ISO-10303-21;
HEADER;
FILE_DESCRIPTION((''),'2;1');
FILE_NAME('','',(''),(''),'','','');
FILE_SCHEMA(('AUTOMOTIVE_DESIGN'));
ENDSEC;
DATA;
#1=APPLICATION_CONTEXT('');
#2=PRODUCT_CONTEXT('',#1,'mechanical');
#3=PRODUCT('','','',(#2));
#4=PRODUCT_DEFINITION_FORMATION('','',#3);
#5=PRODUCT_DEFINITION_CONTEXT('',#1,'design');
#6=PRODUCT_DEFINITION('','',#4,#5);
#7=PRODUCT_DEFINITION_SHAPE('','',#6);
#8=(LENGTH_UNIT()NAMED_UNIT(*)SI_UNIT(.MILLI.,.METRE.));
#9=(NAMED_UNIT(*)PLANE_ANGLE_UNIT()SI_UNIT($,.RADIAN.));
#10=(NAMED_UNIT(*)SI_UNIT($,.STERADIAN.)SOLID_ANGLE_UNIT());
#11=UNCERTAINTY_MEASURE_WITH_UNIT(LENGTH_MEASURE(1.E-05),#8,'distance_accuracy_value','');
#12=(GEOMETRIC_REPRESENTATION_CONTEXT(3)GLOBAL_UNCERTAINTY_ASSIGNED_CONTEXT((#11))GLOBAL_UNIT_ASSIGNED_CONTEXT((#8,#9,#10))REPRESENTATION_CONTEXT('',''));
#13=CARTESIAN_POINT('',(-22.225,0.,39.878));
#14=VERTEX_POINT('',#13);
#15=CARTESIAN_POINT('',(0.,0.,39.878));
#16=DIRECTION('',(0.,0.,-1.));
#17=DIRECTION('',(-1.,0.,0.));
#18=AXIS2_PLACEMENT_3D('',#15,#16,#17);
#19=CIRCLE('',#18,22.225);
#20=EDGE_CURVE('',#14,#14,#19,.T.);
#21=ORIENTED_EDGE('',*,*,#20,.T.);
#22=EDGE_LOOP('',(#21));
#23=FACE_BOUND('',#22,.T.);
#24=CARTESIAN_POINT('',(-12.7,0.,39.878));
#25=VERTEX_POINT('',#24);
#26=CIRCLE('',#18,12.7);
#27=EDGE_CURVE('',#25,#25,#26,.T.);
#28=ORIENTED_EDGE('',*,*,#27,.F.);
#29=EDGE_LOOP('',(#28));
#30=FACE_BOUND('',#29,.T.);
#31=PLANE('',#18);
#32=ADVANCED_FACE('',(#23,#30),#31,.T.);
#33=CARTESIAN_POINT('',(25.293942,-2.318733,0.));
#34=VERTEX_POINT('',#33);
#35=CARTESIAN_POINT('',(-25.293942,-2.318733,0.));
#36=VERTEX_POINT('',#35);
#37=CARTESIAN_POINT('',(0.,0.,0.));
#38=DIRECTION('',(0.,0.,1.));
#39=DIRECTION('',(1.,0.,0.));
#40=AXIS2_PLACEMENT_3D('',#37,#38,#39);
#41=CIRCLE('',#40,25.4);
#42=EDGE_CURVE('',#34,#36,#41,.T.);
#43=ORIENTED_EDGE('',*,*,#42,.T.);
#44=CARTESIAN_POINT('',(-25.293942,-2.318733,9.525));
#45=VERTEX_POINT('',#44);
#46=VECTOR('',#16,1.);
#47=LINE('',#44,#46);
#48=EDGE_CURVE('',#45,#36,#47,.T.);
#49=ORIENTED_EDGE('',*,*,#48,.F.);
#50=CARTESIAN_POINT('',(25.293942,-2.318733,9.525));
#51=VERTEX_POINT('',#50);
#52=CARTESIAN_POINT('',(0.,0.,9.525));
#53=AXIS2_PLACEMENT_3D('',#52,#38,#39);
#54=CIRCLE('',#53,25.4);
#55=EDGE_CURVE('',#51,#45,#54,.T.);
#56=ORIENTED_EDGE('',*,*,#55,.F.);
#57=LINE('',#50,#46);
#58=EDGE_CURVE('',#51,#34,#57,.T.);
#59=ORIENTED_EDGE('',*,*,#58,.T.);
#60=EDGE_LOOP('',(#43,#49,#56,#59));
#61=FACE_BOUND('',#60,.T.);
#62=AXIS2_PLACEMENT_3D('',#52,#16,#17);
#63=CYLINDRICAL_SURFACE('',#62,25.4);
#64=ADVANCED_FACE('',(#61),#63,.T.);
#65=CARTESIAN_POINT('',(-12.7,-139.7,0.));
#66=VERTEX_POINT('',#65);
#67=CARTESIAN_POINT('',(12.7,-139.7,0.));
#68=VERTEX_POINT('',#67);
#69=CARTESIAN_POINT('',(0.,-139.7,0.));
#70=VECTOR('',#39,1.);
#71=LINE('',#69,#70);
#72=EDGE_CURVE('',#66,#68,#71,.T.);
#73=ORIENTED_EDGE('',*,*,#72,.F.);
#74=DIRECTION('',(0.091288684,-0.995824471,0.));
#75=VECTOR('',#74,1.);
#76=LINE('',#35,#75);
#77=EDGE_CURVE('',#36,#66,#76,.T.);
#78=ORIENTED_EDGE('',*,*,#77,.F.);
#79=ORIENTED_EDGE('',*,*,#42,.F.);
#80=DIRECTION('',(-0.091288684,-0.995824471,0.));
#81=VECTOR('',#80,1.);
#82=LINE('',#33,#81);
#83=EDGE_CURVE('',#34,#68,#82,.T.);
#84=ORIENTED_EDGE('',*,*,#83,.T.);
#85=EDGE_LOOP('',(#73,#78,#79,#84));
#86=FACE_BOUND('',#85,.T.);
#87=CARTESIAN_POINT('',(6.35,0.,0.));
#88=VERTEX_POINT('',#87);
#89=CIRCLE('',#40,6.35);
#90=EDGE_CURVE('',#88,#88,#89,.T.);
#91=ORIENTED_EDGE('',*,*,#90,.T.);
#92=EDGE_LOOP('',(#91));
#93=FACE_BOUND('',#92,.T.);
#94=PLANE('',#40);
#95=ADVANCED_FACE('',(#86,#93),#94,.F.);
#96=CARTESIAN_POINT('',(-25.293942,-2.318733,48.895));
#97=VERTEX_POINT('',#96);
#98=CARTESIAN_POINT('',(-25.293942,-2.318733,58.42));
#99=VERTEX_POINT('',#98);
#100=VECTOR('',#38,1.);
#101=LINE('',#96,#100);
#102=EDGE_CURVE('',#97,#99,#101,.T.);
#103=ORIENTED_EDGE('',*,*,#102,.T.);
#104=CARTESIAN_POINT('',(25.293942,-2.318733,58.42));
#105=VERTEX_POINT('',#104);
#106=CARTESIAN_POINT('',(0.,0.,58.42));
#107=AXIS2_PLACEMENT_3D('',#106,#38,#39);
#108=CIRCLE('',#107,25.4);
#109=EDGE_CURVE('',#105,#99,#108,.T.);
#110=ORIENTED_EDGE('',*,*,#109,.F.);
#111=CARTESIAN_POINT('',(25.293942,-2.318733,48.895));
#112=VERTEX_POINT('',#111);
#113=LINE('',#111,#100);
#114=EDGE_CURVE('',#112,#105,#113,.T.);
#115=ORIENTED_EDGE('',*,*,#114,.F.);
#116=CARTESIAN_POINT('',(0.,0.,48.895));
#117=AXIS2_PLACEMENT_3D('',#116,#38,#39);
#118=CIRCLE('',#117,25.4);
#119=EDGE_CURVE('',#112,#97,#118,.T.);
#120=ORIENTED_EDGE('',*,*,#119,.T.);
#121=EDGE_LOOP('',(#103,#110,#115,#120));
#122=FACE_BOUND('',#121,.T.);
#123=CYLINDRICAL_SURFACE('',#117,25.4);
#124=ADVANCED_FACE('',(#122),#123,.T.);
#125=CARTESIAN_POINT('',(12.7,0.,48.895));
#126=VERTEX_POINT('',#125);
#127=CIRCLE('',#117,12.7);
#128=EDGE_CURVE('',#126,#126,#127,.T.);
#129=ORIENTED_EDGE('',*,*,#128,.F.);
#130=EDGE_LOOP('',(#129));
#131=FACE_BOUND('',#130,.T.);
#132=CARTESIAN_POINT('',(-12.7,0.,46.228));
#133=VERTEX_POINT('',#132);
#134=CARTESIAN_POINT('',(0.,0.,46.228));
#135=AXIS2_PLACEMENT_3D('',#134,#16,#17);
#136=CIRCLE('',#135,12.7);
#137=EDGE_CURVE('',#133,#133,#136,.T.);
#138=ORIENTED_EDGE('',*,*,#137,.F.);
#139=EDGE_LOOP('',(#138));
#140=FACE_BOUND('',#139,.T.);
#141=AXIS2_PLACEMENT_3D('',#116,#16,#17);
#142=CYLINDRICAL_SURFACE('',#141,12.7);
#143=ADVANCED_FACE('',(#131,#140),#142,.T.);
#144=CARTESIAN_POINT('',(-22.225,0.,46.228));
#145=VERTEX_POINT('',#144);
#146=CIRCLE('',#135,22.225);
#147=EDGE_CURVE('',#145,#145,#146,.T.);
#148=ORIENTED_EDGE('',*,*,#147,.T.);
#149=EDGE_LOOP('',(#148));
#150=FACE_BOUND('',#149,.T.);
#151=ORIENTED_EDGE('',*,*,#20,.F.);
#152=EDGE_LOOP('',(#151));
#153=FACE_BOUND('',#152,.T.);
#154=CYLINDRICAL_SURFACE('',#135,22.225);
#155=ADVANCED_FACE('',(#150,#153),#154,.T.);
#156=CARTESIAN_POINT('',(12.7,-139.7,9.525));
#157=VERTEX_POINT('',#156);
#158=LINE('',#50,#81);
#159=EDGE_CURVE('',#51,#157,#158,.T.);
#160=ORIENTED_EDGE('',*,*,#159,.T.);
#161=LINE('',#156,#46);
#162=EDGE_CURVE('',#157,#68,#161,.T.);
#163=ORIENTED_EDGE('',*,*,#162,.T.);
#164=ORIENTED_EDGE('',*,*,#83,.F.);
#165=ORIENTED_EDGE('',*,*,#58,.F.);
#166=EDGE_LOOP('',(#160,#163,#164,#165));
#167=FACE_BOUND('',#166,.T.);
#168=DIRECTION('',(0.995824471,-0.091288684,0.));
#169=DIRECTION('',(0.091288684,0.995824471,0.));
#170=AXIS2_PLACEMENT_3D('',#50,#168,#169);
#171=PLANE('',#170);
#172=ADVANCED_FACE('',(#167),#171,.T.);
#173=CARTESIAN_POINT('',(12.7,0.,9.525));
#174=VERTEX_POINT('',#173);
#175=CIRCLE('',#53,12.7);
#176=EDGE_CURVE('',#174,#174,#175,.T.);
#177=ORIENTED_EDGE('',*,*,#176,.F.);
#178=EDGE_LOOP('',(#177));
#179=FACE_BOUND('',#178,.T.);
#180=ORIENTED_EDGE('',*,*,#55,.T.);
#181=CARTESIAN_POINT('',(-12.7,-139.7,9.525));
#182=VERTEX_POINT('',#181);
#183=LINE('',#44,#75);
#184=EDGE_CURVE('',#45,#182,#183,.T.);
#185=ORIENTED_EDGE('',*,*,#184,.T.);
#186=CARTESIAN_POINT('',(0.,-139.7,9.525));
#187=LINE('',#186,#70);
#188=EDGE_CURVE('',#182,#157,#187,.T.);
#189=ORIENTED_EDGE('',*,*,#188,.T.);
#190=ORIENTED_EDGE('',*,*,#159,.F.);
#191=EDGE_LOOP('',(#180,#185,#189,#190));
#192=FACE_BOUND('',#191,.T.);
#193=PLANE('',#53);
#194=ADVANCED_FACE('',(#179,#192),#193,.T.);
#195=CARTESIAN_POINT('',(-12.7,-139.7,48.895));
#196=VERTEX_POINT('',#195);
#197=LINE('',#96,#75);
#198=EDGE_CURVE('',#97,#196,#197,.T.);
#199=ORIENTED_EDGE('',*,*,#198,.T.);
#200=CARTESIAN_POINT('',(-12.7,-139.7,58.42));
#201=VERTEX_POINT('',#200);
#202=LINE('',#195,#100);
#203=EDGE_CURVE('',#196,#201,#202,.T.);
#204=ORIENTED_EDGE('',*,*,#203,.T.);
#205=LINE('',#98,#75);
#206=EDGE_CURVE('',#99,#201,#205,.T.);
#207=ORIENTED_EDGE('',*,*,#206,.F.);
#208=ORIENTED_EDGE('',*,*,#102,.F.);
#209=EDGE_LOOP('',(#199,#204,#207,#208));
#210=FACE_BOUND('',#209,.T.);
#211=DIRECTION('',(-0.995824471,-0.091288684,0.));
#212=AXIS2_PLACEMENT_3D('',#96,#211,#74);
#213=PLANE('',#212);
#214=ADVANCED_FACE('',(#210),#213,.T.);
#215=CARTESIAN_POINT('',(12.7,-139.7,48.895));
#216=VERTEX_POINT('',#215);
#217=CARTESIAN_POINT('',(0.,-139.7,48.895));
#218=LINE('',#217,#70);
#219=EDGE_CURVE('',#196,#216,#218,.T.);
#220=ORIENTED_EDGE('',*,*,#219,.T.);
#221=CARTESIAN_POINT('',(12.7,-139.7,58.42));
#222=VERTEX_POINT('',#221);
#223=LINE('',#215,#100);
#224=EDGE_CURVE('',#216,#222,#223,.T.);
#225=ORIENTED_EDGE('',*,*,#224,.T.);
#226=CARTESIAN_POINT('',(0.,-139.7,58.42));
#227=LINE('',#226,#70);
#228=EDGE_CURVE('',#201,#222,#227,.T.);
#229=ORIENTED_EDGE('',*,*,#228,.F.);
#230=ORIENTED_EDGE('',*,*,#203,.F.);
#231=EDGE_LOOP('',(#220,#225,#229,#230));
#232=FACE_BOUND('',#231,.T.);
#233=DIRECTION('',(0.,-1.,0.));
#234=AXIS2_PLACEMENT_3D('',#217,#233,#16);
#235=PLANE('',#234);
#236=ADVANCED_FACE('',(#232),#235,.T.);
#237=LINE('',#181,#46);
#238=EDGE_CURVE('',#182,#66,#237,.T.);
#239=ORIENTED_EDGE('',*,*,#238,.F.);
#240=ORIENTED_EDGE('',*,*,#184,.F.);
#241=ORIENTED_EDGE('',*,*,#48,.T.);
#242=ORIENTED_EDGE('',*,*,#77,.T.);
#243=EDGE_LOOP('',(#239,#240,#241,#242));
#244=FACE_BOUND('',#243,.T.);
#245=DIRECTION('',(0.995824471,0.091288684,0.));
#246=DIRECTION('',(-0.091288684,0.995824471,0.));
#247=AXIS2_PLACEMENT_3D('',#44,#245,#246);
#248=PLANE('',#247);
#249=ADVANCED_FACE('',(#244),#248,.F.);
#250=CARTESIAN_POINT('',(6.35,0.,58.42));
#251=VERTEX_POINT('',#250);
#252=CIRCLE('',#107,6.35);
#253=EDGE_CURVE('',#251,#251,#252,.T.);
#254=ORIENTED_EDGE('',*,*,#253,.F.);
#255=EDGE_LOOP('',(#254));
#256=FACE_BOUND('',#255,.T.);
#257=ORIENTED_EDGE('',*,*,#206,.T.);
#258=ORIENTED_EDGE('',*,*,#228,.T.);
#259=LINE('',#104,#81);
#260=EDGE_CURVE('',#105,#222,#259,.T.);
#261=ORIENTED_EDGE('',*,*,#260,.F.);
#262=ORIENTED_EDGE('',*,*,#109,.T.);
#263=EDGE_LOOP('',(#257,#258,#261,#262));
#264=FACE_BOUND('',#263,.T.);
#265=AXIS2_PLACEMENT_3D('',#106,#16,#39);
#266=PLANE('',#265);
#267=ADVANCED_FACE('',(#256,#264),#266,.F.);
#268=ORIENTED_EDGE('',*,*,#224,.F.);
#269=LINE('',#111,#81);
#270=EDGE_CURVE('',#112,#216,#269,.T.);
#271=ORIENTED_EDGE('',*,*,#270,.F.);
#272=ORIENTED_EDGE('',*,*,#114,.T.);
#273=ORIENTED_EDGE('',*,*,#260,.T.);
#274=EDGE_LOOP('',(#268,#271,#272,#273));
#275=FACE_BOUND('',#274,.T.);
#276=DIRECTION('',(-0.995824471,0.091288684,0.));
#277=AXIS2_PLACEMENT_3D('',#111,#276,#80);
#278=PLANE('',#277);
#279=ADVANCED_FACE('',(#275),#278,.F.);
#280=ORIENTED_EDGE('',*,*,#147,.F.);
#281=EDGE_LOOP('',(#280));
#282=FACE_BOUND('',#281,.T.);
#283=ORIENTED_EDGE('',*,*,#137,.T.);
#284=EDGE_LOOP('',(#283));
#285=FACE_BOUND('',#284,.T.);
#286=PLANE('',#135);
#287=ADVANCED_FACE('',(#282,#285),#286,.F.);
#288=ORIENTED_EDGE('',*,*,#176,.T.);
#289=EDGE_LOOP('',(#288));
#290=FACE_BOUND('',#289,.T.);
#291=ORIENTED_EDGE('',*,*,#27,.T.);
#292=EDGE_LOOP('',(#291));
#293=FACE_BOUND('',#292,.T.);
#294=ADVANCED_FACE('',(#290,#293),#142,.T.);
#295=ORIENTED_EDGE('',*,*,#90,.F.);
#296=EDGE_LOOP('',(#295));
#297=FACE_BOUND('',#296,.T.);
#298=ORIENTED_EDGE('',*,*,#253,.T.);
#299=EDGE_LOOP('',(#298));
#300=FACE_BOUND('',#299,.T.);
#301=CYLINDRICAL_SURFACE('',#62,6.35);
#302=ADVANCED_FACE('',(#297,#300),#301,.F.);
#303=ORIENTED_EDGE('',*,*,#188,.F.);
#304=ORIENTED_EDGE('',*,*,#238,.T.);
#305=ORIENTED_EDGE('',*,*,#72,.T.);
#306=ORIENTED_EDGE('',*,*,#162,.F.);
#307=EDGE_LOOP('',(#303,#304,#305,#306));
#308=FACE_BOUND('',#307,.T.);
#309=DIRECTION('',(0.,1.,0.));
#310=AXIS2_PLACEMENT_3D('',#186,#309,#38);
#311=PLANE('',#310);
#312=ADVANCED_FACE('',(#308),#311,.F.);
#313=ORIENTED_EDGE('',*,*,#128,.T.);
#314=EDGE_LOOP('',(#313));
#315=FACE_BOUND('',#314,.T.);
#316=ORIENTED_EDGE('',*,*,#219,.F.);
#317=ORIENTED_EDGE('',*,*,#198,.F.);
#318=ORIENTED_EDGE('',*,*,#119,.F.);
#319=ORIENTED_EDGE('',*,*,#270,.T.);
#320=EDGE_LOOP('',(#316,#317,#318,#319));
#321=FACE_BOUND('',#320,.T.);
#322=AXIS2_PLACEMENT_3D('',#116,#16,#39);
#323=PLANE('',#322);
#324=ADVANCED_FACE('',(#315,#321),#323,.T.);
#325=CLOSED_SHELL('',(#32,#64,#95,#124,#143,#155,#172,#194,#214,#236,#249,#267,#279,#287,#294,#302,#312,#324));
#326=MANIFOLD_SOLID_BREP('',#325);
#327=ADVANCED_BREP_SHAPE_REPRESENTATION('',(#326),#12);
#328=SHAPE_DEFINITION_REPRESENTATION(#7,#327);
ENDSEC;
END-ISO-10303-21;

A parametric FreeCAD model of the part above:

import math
import FreeCAD as App
import Part
import Sketcher
Q = App.Units.Quantity

doc = App.newDocument("Part")
body = doc.addObject("PartDesign::Body", "Body")

# Sketch on XY plane
sketch1 = body.newObject("Sketcher::SketchObject", "Sketch")
sketch1.AttachmentSupport = (doc.getObject("XY_Plane"), [""])
sketch1.MapMode = "FlatFace"
sketch1.addGeometry([
    Part.LineSegment(App.Vector(-25.293942, -2.318733, 0), App.Vector(-12.7, -139.7, 0)),  # 0
    Part.LineSegment(App.Vector(-12.7, -139.7, 0), App.Vector(12.7, -139.7, 0)),  # 1
    Part.LineSegment(App.Vector(12.7, -139.7, 0), App.Vector(25.293942, -2.318733, 0)),  # 2
    Part.ArcOfCircle(Part.Circle(App.Vector(0, 0, 0), App.Vector(0, 0, 1), 25.4), math.radians(-5.237748), math.radians(185.237748)),  # 3
    Part.Circle(App.Vector(0, 0, 0), App.Vector(0, 0, 1), 6.35),  # 4
], False)
sketch1.addConstraint([
    Sketcher.Constraint("Coincident", 0, 2, 1, 1),
    Sketcher.Constraint("Coincident", 1, 2, 2, 1),
    Sketcher.Constraint("Tangent", 2, 2, 3, 1),
    Sketcher.Constraint("Tangent", 3, 2, 0, 1),
    Sketcher.Constraint("Horizontal", 1),
    Sketcher.Constraint("Coincident", 3, 3, -1, 1),
    Sketcher.Constraint("Coincident", 4, 3, -1, 1),
    Sketcher.Constraint("Horizontal", 2, 2, 3, 2),
    Sketcher.Constraint("Radius", 3, Q("1 in")),
    Sketcher.Constraint("Diameter", 4, Q("0.5 in")),
    Sketcher.Constraint("DistanceX", 1, 1, 1, 2, Q("1 in")),
    Sketcher.Constraint("DistanceY", 0, 2, -1, 1, Q("5.5 in")),
])
pad1 = body.newObject("PartDesign::Pad", "Pad")
pad1.Profile = sketch1
pad1.Length = Q("0.375 in")

# Sketch on XY plane
sketch2 = body.newObject("Sketcher::SketchObject", "Sketch001")
sketch2.AttachmentSupport = (doc.getObject("XY_Plane"), [""])
sketch2.MapMode = "FlatFace"
sketch2.AttachmentOffset = App.Placement(App.Vector(0, 0, 0.375 * 25.4), App.Rotation())
sketch2.addGeometry([
    Part.Circle(App.Vector(0, 0, 0), App.Vector(0, 0, 1), 12.7),
    Part.Circle(App.Vector(0, 0, 0), App.Vector(0, 0, 1), 6.35),
], False)
sketch2.addConstraint([
    Sketcher.Constraint("Coincident", 0, 3, -1, 1),
    Sketcher.Constraint("Coincident", 1, 3, -1, 1),
    Sketcher.Constraint("Diameter", 0, Q("1 in")),
    Sketcher.Constraint("Diameter", 1, Q("0.5 in")),
])
pad2 = body.newObject("PartDesign::Pad", "Pad001")
pad2.Profile = sketch2
pad2.Length = Q("1.55 in")
doc.recompute()

datumplane = body.newObject("PartDesign::Plane", "DatumPlane")
datumplane.AttachmentSupport = (doc.getObject("XY_Plane"), [""])
datumplane.MapMode = "FlatFace"
datumplane.AttachmentOffset = App.Placement(App.Vector(0, 0, 1.15 * 25.4), App.Rotation())
mirrored = body.newObject("PartDesign::Mirrored", "Mirrored")
mirrored.Originals = [pad1]
mirrored.MirrorPlane = (datumplane, [""])
body.Tip = mirrored

# Sketch on XY plane
sketch3 = body.newObject("Sketcher::SketchObject", "Sketch002")
sketch3.AttachmentSupport = (doc.getObject("XY_Plane"), [""])
sketch3.MapMode = "FlatFace"
sketch3.AttachmentOffset = App.Placement(App.Vector(0, 0, 1.57 * 25.4), App.Rotation())
sketch3.addGeometry([
    Part.Circle(App.Vector(0, 0, 0), App.Vector(0, 0, 1), 22.225),
    Part.Circle(App.Vector(0, 0, 0), App.Vector(0, 0, 1), 12.7),
], False)
sketch3.addConstraint([
    Sketcher.Constraint("Coincident", 0, 3, -1, 1),
    Sketcher.Constraint("Coincident", 1, 3, -1, 1),
    Sketcher.Constraint("Diameter", 1, Q("1 in")),
    Sketcher.Constraint("Diameter", 0, Q("1.75 in")),
])
pad3 = body.newObject("PartDesign::Pad", "Pad002")
pad3.Profile = sketch3
pad3.Length = Q("0.25 in")

doc.recompute()
